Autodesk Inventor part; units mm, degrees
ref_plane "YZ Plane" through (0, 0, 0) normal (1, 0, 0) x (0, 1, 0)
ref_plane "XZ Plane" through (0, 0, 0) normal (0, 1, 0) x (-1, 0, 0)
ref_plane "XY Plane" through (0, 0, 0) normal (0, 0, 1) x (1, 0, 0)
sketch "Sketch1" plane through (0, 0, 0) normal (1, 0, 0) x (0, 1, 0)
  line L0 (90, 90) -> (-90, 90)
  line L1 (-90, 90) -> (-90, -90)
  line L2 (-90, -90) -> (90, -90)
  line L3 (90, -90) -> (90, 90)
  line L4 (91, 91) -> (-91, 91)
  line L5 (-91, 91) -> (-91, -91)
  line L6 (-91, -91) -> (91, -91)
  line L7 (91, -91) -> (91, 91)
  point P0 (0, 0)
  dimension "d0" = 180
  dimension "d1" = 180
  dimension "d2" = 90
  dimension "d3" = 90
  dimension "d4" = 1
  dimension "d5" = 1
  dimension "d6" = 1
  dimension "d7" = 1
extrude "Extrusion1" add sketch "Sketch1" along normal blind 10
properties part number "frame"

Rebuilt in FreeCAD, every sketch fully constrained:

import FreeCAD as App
import Part
import Sketcher
from FreeCAD import Vector

doc = App.newDocument("Part")
params = doc.addObject("Spreadsheet::Sheet", "Params")
for row, (alias, value) in enumerate([
    ("sketch1_width", "180 mm"),
    ("pad1_length", "10 mm"),
], start=1):
    params.set(f"A{row}", alias)
    params.set(f"B{row}", "=" + value)
    params.setAlias(f"B{row}", alias)

body = doc.addObject("PartDesign::Body", "Body")

# Sketch on YZ plane
sketch1 = body.newObject("Sketcher::SketchObject", "Sketch")
sketch1.AttachmentSupport = (doc.getObject("YZ_Plane"), [""])
sketch1.MapMode = "FlatFace"
sketch1.addGeometry([
    Part.LineSegment(Vector(91, -91, 0), Vector(91, 91, 0)),  # 0
    Part.LineSegment(Vector(91, 91, 0), Vector(-91, 91, 0)),  # 1
    Part.LineSegment(Vector(-91, 91, 0), Vector(-91, -91, 0)),  # 2
    Part.LineSegment(Vector(-91, -91, 0), Vector(91, -91, 0)),  # 3
    Part.LineSegment(Vector(-90, 90, 0), Vector(90, 90, 0)),  # 4
    Part.LineSegment(Vector(90, 90, 0), Vector(90, -90, 0)),  # 5
    Part.LineSegment(Vector(90, -90, 0), Vector(-90, -90, 0)),  # 6
    Part.LineSegment(Vector(-90, -90, 0), Vector(-90, 90, 0)),  # 7
], False)
sketch1.addConstraint([
    Sketcher.Constraint("Coincident", 0, 2, 1, 1),
    Sketcher.Constraint("Coincident", 1, 2, 2, 1),
    Sketcher.Constraint("Coincident", 2, 2, 3, 1),
    Sketcher.Constraint("Coincident", 3, 2, 0, 1),
    Sketcher.Constraint("Coincident", 4, 2, 5, 1),
    Sketcher.Constraint("Coincident", 5, 2, 6, 1),
    Sketcher.Constraint("Coincident", 6, 2, 7, 1),
    Sketcher.Constraint("Coincident", 7, 2, 4, 1),
    Sketcher.Constraint("Vertical", 0),
    Sketcher.Constraint("Horizontal", 1),
    Sketcher.Constraint("Vertical", 2),
    Sketcher.Constraint("Horizontal", 3),
    Sketcher.Constraint("Horizontal", 4),
    Sketcher.Constraint("Vertical", 5),
    Sketcher.Constraint("Horizontal", 6),
    Sketcher.Constraint("Vertical", 7),
    Sketcher.Constraint("Symmetric", 0, 2, 2, 2, -1, 1),
    Sketcher.Constraint("Symmetric", 4, 2, 6, 2, -1, 1),
    Sketcher.Constraint("Equal", 3, 0),
    Sketcher.Constraint("Equal", 6, 5),
    Sketcher.Constraint("DistanceX", 4, 1, 4, 2, 180.0),
    Sketcher.Constraint("DistanceX", 4, 2, 0, 2, 1.0),
])
sketch1.setExpression("Constraints[20]", "Params.sketch1_width")
pad1 = body.newObject("PartDesign::Pad", "Pad")
pad1.Profile = sketch1
pad1.setExpression("Length", "Params.pad1_length")

doc.recompute()
